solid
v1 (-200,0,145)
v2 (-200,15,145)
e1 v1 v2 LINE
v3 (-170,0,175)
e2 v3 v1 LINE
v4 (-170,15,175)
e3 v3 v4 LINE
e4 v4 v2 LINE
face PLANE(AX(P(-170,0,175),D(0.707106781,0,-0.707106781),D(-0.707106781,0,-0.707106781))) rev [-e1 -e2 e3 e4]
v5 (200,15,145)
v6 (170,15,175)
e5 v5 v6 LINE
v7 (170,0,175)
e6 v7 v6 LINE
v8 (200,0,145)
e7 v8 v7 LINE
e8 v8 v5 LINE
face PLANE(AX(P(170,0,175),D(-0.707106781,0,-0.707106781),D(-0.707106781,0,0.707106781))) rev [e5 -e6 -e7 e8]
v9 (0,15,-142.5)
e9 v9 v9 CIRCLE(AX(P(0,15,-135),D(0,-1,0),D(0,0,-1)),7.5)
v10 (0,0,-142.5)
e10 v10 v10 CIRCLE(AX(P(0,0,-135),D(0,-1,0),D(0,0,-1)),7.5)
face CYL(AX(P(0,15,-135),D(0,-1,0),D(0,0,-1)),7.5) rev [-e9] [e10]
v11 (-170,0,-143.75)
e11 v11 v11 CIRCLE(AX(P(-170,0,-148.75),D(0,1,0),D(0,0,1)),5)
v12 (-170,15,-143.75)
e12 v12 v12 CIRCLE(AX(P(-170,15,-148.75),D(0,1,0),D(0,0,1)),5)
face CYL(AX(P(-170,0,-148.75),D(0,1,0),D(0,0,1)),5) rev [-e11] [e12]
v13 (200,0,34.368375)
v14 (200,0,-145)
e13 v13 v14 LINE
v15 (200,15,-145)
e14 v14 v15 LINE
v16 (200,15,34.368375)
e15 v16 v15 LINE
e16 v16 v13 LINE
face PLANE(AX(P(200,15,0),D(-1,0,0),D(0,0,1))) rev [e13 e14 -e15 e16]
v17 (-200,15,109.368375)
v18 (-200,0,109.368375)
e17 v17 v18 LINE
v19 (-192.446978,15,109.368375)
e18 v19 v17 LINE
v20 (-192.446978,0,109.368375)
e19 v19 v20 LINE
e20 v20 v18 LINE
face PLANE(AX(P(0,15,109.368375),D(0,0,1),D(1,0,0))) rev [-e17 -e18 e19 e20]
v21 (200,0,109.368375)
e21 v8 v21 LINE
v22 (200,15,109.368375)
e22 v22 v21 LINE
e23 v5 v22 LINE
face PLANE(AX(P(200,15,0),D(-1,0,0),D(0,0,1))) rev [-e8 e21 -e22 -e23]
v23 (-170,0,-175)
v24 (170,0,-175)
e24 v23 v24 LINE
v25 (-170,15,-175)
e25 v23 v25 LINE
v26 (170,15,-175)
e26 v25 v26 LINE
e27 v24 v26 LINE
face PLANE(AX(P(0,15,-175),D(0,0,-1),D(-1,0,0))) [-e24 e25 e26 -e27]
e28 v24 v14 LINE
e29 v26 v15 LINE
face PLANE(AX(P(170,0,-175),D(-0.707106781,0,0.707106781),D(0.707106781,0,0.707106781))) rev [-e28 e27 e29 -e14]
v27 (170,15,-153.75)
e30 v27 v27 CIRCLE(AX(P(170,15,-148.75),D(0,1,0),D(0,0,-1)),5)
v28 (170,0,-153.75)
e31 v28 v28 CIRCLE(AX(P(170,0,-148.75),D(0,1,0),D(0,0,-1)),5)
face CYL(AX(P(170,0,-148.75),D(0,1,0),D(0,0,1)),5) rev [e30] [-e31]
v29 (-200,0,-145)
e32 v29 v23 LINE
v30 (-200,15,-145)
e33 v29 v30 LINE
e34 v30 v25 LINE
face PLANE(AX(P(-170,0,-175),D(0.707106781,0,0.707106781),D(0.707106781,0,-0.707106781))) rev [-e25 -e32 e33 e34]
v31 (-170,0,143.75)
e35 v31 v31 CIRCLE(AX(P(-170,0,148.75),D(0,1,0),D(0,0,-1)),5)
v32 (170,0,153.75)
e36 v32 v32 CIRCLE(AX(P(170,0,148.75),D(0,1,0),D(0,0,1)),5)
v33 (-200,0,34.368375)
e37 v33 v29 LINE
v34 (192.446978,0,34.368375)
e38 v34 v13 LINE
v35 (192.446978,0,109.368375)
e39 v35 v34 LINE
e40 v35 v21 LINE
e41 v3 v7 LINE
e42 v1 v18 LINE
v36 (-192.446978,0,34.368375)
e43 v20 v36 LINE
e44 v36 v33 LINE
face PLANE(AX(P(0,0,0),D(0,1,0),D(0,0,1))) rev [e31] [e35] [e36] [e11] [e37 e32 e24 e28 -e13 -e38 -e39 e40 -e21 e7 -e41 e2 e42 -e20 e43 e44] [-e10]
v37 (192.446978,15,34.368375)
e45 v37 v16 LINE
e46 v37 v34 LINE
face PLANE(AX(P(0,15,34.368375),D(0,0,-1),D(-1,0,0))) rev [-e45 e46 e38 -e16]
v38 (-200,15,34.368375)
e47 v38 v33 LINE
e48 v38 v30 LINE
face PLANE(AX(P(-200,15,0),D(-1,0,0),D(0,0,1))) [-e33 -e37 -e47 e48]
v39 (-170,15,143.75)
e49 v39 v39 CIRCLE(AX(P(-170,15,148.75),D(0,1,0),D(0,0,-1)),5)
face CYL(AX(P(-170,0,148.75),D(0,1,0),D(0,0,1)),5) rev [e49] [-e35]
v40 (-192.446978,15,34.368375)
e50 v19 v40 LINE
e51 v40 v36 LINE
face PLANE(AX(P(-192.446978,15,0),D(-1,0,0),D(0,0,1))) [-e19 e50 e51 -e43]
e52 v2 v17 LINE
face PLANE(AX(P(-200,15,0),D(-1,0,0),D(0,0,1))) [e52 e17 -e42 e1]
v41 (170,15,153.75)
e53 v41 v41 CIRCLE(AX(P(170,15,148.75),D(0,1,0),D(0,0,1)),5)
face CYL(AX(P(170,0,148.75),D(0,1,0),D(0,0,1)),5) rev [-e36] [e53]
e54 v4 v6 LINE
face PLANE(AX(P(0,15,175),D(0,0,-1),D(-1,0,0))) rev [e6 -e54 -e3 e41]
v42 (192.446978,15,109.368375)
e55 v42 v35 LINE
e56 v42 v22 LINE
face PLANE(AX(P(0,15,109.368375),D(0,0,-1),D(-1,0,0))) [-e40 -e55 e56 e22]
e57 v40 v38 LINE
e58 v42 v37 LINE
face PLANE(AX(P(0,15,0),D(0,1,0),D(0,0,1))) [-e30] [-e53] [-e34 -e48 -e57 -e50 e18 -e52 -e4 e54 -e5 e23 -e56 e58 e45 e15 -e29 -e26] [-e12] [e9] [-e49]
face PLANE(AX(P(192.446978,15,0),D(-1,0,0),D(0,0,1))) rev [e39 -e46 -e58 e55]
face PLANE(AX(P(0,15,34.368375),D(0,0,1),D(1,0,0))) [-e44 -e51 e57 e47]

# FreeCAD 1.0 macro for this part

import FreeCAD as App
import Part
import Sketcher

V = App.Vector
Q = App.Units.Quantity

doc = App.newDocument("Part")
params = doc.addObject("Spreadsheet::Sheet", "Params")
for row, (alias, value) in enumerate([
    ("sketch1_width", "400 mm"),
    ("sketch1_height", "75 mm"),
    ("pad1_length", "15 mm"),
    ("sketch2_diameter", "10 mm"),
    ("sketch2_width", "30 mm"),
    ("sketch3_diameter", "15 mm"),
], start=1):
    params.set(f"A{row}", alias)
    params.set(f"B{row}", "=" + value)
    params.setAlias(f"B{row}", alias)

body = doc.addObject("PartDesign::Body", "Body")

# Sketch on XZ plane
sketch1 = doc.addObject("Sketcher::SketchObject", "Sketch")
body.addObject(sketch1)
sketch1.AttachmentSupport = (doc.XZ_Plane, [""])
sketch1.MapMode = "FlatFace"
sketch1.addGeometry(Part.LineSegment(V(-200, 175, 0), V(200, 175, 0)), False)
sketch1.addGeometry(Part.LineSegment(V(200, 175, 0), V(200, 109.368375, 0)), False)
sketch1.addGeometry(Part.LineSegment(V(200, 109.368375, 0), V(192.446978, 109.368375, 0)), False)
sketch1.addGeometry(Part.LineSegment(V(192.446978, 109.368375, 0), V(192.446978, 34.368375, 0)), False)
sketch1.addGeometry(Part.LineSegment(V(192.446978, 34.368375, 0), V(200, 34.368375, 0)), False)
sketch1.addGeometry(Part.LineSegment(V(200, 34.368375, 0), V(200, -175, 0)), False)
sketch1.addGeometry(Part.LineSegment(V(200, -175, 0), V(-200, -175, 0)), False)
sketch1.addGeometry(Part.LineSegment(V(-200, -175, 0), V(-200, 34.368375, 0)), False)
sketch1.addGeometry(Part.LineSegment(V(-200, 34.368375, 0), V(-192.446978, 34.368375, 0)), False)
sketch1.addGeometry(Part.LineSegment(V(-192.446978, 34.368375, 0), V(-192.446978, 109.368375, 0)), False)
sketch1.addGeometry(Part.LineSegment(V(-192.446978, 109.368375, 0), V(-200, 109.368375, 0)), False)
sketch1.addGeometry(Part.LineSegment(V(-200, 109.368375, 0), V(-200, 175, 0)), False)
sketch1.addConstraint(Sketcher.Constraint("Coincident", 0, 2, 1, 1))
sketch1.addConstraint(Sketcher.Constraint("Coincident", 1, 2, 2, 1))
sketch1.addConstraint(Sketcher.Constraint("Coincident", 2, 2, 3, 1))
sketch1.addConstraint(Sketcher.Constraint("Coincident", 3, 2, 4, 1))
sketch1.addConstraint(Sketcher.Constraint("Coincident", 4, 2, 5, 1))
sketch1.addConstraint(Sketcher.Constraint("Coincident", 5, 2, 6, 1))
sketch1.addConstraint(Sketcher.Constraint("Coincident", 6, 2, 7, 1))
sketch1.addConstraint(Sketcher.Constraint("Coincident", 7, 2, 8, 1))
sketch1.addConstraint(Sketcher.Constraint("Coincident", 8, 2, 9, 1))
sketch1.addConstraint(Sketcher.Constraint("Coincident", 9, 2, 10, 1))
sketch1.addConstraint(Sketcher.Constraint("Coincident", 10, 2, 11, 1))
sketch1.addConstraint(Sketcher.Constraint("Coincident", 11, 2, 0, 1))
sketch1.addConstraint(Sketcher.Constraint("Horizontal", 0))
sketch1.addConstraint(Sketcher.Constraint("Vertical", 1))
sketch1.addConstraint(Sketcher.Constraint("Horizontal", 2))
sketch1.addConstraint(Sketcher.Constraint("Vertical", 3))
sketch1.addConstraint(Sketcher.Constraint("Horizontal", 4))
sketch1.addConstraint(Sketcher.Constraint("Vertical", 5))
sketch1.addConstraint(Sketcher.Constraint("Horizontal", 6))
sketch1.addConstraint(Sketcher.Constraint("Vertical", 7))
sketch1.addConstraint(Sketcher.Constraint("Horizontal", 8))
sketch1.addConstraint(Sketcher.Constraint("Vertical", 9))
sketch1.addConstraint(Sketcher.Constraint("Horizontal", 10))
sketch1.addConstraint(Sketcher.Constraint("Vertical", 11))
sketch1.addConstraint(Sketcher.Constraint("Symmetric", 0, 2, 6, 2, -1, 1))
sketch1.addConstraint(Sketcher.Constraint("Symmetric", 4, 2, 7, 2, -2))
sketch1.addConstraint(Sketcher.Constraint("Symmetric", 2, 2, 9, 2, -2))
sketch1.addConstraint(Sketcher.Constraint("Vertical", 7, 2, 10, 2))
sketch1.addConstraint(Sketcher.Constraint("DistanceX", 0, 1, 0, 2, Q("400 mm")))
sketch1.addConstraint(Sketcher.Constraint("DistanceY", 3, 2, 3, 1, Q("75 mm")))
sketch1.addConstraint(Sketcher.Constraint("DistanceY", -1, 1, 0, 2, Q("175 mm")))
sketch1.addConstraint(Sketcher.Constraint("DistanceX", 2, 2, 2, 1, Q("7.553022 mm")))
sketch1.addConstraint(Sketcher.Constraint("DistanceY", 1, 2, 1, 1, Q("65.631625 mm")))
sketch1.setExpression("Constraints[28]", "Params.sketch1_width")
sketch1.setExpression("Constraints[29]", "Params.sketch1_height")
pad1 = doc.addObject("PartDesign::Pad", "Pad")
body.addObject(pad1)
pad1.Profile = sketch1
pad1.setExpression("Length", "Params.pad1_length")
pad1.Reversed = True

# Sketch on XZ plane
sketch2 = doc.addObject("Sketcher::SketchObject", "Sketch001")
body.addObject(sketch2)
sketch2.AttachmentSupport = (doc.XZ_Plane, [""])
sketch2.MapMode = "FlatFace"
sketch2.AttachmentOffset = App.Placement(V(0, 0, -15), App.Rotation())
sketch2.addGeometry(Part.Circle(V(-170, -148.75, 0), V(0, 0, 1), 5), False)
sketch2.addGeometry(Part.Circle(V(170, -148.75, 0), V(0, 0, 1), 5), False)
sketch2.addGeometry(Part.Circle(V(170, 148.75, 0), V(0, 0, 1), 5), False)
sketch2.addGeometry(Part.Circle(V(-170, 148.75, 0), V(0, 0, 1), 5), False)
sketch2.addGeometry(Part.LineSegment(V(-200, -145, 0), V(-170, -175, 0)), False)
sketch2.addGeometry(Part.LineSegment(V(-170, -175, 0), V(-200, -175, 0)), False)
sketch2.addGeometry(Part.LineSegment(V(-200, -175, 0), V(-200, -145, 0)), False)
sketch2.addGeometry(Part.LineSegment(V(-200, 145, 0), V(-200, 175, 0)), False)
sketch2.addGeometry(Part.LineSegment(V(-200, 175, 0), V(-170, 175, 0)), False)
sketch2.addGeometry(Part.LineSegment(V(-170, 175, 0), V(-200, 145, 0)), False)
sketch2.addGeometry(Part.LineSegment(V(200, 145, 0), V(170, 175, 0)), False)
sketch2.addGeometry(Part.LineSegment(V(170, 175, 0), V(200, 175, 0)), False)
sketch2.addGeometry(Part.LineSegment(V(200, 175, 0), V(200, 145, 0)), False)
sketch2.addGeometry(Part.LineSegment(V(200, -145, 0), V(200, -175, 0)), False)
sketch2.addGeometry(Part.LineSegment(V(200, -175, 0), V(170, -175, 0)), False)
sketch2.addGeometry(Part.LineSegment(V(170, -175, 0), V(200, -145, 0)), False)
sketch2.addConstraint(Sketcher.Constraint("Coincident", 4, 2, 5, 1))
sketch2.addConstraint(Sketcher.Constraint("Coincident", 5, 2, 6, 1))
sketch2.addConstraint(Sketcher.Constraint("Coincident", 6, 2, 4, 1))
sketch2.addConstraint(Sketcher.Constraint("Coincident", 7, 2, 8, 1))
sketch2.addConstraint(Sketcher.Constraint("Coincident", 8, 2, 9, 1))
sketch2.addConstraint(Sketcher.Constraint("Coincident", 9, 2, 7, 1))
sketch2.addConstraint(Sketcher.Constraint("Coincident", 10, 2, 11, 1))
sketch2.addConstraint(Sketcher.Constraint("Coincident", 11, 2, 12, 1))
sketch2.addConstraint(Sketcher.Constraint("Coincident", 12, 2, 10, 1))
sketch2.addConstraint(Sketcher.Constraint("Coincident", 13, 2, 14, 1))
sketch2.addConstraint(Sketcher.Constraint("Coincident", 14, 2, 15, 1))
sketch2.addConstraint(Sketcher.Constraint("Coincident", 15, 2, 13, 1))
sketch2.addConstraint(Sketcher.Constraint("Horizontal", 5))
sketch2.addConstraint(Sketcher.Constraint("Vertical", 6))
sketch2.addConstraint(Sketcher.Constraint("Vertical", 7))
sketch2.addConstraint(Sketcher.Constraint("Horizontal", 8))
sketch2.addConstraint(Sketcher.Constraint("Horizontal", 11))
sketch2.addConstraint(Sketcher.Constraint("Vertical", 12))
sketch2.addConstraint(Sketcher.Constraint("Vertical", 13))
sketch2.addConstraint(Sketcher.Constraint("Horizontal", 14))
sketch2.addConstraint(Sketcher.Constraint("Equal", 0, 1))
sketch2.addConstraint(Sketcher.Constraint("Equal", 1, 2))
sketch2.addConstraint(Sketcher.Constraint("Equal", 2, 3))
sketch2.addConstraint(Sketcher.Constraint("Symmetric", 0, 3, 2, 3, -1, 1))
sketch2.addConstraint(Sketcher.Constraint("Symmetric", 1, 3, 3, 3, -1, 1))
sketch2.addConstraint(Sketcher.Constraint("Symmetric", 4, 2, 10, 2, -1, 1))
sketch2.addConstraint(Sketcher.Constraint("Symmetric", 6, 2, 12, 2, -1, 1))
sketch2.addConstraint(Sketcher.Constraint("Symmetric", 7, 2, 13, 2, -1, 1))
sketch2.addConstraint(Sketcher.Constraint("Symmetric", 0, 3, 1, 3, -2))
sketch2.addConstraint(Sketcher.Constraint("Symmetric", 8, 2, 10, 2, -2))
sketch2.addConstraint(Sketcher.Constraint("Symmetric", 9, 2, 12, 2, -2))
sketch2.addConstraint(Sketcher.Constraint("Perpendicular", 4, 9))
sketch2.addConstraint(Sketcher.Constraint("Perpendicular", 10, 15))
sketch2.addConstraint(Sketcher.Constraint("Horizontal", 6, 2, 15, 2))
sketch2.addConstraint(Sketcher.Constraint("Vertical", 3, 3, 4, 2))
sketch2.addConstraint(Sketcher.Constraint("Diameter", 0, Q("10 mm")))
sketch2.addConstraint(Sketcher.Constraint("DistanceX", 5, 2, 5, 1, Q("30 mm")))
sketch2.addConstraint(Sketcher.Constraint("DistanceX", 0, 3, -1, 1, Q("170 mm")))
sketch2.addConstraint(Sketcher.Constraint("DistanceY", 4, 2, -1, 1, Q("175 mm")))
sketch2.addConstraint(Sketcher.Constraint("DistanceY", 1, 3, 2, 3, Q("297.5 mm")))
sketch2.setExpression("Constraints[35]", "Params.sketch2_diameter")
sketch2.setExpression("Constraints[36]", "Params.sketch2_width")
pocket1 = doc.addObject("PartDesign::Pocket", "Pocket")
body.addObject(pocket1)
pocket1.Profile = sketch2
pocket1.Type = "ThroughAll"
pocket1.Reversed = True

# Sketch on XZ plane
sketch3 = doc.addObject("Sketcher::SketchObject", "Sketch002")
body.addObject(sketch3)
sketch3.AttachmentSupport = (doc.XZ_Plane, [""])
sketch3.MapMode = "FlatFace"
sketch3.addGeometry(Part.Circle(V(0, -135, 0), V(0, 0, 1), 7.5), False)
sketch3.addConstraint(Sketcher.Constraint("PointOnObject", 0, 3, -2))
sketch3.addConstraint(Sketcher.Constraint("Diameter", 0, Q("15 mm")))
sketch3.addConstraint(Sketcher.Constraint("DistanceY", 0, 3, -1, 1, Q("135 mm")))
sketch3.setExpression("Constraints[1]", "Params.sketch3_diameter")
pocket2 = doc.addObject("PartDesign::Pocket", "Pocket001")
body.addObject(pocket2)
pocket2.Profile = sketch3
pocket2.Type = "ThroughAll"

doc.recompute()
